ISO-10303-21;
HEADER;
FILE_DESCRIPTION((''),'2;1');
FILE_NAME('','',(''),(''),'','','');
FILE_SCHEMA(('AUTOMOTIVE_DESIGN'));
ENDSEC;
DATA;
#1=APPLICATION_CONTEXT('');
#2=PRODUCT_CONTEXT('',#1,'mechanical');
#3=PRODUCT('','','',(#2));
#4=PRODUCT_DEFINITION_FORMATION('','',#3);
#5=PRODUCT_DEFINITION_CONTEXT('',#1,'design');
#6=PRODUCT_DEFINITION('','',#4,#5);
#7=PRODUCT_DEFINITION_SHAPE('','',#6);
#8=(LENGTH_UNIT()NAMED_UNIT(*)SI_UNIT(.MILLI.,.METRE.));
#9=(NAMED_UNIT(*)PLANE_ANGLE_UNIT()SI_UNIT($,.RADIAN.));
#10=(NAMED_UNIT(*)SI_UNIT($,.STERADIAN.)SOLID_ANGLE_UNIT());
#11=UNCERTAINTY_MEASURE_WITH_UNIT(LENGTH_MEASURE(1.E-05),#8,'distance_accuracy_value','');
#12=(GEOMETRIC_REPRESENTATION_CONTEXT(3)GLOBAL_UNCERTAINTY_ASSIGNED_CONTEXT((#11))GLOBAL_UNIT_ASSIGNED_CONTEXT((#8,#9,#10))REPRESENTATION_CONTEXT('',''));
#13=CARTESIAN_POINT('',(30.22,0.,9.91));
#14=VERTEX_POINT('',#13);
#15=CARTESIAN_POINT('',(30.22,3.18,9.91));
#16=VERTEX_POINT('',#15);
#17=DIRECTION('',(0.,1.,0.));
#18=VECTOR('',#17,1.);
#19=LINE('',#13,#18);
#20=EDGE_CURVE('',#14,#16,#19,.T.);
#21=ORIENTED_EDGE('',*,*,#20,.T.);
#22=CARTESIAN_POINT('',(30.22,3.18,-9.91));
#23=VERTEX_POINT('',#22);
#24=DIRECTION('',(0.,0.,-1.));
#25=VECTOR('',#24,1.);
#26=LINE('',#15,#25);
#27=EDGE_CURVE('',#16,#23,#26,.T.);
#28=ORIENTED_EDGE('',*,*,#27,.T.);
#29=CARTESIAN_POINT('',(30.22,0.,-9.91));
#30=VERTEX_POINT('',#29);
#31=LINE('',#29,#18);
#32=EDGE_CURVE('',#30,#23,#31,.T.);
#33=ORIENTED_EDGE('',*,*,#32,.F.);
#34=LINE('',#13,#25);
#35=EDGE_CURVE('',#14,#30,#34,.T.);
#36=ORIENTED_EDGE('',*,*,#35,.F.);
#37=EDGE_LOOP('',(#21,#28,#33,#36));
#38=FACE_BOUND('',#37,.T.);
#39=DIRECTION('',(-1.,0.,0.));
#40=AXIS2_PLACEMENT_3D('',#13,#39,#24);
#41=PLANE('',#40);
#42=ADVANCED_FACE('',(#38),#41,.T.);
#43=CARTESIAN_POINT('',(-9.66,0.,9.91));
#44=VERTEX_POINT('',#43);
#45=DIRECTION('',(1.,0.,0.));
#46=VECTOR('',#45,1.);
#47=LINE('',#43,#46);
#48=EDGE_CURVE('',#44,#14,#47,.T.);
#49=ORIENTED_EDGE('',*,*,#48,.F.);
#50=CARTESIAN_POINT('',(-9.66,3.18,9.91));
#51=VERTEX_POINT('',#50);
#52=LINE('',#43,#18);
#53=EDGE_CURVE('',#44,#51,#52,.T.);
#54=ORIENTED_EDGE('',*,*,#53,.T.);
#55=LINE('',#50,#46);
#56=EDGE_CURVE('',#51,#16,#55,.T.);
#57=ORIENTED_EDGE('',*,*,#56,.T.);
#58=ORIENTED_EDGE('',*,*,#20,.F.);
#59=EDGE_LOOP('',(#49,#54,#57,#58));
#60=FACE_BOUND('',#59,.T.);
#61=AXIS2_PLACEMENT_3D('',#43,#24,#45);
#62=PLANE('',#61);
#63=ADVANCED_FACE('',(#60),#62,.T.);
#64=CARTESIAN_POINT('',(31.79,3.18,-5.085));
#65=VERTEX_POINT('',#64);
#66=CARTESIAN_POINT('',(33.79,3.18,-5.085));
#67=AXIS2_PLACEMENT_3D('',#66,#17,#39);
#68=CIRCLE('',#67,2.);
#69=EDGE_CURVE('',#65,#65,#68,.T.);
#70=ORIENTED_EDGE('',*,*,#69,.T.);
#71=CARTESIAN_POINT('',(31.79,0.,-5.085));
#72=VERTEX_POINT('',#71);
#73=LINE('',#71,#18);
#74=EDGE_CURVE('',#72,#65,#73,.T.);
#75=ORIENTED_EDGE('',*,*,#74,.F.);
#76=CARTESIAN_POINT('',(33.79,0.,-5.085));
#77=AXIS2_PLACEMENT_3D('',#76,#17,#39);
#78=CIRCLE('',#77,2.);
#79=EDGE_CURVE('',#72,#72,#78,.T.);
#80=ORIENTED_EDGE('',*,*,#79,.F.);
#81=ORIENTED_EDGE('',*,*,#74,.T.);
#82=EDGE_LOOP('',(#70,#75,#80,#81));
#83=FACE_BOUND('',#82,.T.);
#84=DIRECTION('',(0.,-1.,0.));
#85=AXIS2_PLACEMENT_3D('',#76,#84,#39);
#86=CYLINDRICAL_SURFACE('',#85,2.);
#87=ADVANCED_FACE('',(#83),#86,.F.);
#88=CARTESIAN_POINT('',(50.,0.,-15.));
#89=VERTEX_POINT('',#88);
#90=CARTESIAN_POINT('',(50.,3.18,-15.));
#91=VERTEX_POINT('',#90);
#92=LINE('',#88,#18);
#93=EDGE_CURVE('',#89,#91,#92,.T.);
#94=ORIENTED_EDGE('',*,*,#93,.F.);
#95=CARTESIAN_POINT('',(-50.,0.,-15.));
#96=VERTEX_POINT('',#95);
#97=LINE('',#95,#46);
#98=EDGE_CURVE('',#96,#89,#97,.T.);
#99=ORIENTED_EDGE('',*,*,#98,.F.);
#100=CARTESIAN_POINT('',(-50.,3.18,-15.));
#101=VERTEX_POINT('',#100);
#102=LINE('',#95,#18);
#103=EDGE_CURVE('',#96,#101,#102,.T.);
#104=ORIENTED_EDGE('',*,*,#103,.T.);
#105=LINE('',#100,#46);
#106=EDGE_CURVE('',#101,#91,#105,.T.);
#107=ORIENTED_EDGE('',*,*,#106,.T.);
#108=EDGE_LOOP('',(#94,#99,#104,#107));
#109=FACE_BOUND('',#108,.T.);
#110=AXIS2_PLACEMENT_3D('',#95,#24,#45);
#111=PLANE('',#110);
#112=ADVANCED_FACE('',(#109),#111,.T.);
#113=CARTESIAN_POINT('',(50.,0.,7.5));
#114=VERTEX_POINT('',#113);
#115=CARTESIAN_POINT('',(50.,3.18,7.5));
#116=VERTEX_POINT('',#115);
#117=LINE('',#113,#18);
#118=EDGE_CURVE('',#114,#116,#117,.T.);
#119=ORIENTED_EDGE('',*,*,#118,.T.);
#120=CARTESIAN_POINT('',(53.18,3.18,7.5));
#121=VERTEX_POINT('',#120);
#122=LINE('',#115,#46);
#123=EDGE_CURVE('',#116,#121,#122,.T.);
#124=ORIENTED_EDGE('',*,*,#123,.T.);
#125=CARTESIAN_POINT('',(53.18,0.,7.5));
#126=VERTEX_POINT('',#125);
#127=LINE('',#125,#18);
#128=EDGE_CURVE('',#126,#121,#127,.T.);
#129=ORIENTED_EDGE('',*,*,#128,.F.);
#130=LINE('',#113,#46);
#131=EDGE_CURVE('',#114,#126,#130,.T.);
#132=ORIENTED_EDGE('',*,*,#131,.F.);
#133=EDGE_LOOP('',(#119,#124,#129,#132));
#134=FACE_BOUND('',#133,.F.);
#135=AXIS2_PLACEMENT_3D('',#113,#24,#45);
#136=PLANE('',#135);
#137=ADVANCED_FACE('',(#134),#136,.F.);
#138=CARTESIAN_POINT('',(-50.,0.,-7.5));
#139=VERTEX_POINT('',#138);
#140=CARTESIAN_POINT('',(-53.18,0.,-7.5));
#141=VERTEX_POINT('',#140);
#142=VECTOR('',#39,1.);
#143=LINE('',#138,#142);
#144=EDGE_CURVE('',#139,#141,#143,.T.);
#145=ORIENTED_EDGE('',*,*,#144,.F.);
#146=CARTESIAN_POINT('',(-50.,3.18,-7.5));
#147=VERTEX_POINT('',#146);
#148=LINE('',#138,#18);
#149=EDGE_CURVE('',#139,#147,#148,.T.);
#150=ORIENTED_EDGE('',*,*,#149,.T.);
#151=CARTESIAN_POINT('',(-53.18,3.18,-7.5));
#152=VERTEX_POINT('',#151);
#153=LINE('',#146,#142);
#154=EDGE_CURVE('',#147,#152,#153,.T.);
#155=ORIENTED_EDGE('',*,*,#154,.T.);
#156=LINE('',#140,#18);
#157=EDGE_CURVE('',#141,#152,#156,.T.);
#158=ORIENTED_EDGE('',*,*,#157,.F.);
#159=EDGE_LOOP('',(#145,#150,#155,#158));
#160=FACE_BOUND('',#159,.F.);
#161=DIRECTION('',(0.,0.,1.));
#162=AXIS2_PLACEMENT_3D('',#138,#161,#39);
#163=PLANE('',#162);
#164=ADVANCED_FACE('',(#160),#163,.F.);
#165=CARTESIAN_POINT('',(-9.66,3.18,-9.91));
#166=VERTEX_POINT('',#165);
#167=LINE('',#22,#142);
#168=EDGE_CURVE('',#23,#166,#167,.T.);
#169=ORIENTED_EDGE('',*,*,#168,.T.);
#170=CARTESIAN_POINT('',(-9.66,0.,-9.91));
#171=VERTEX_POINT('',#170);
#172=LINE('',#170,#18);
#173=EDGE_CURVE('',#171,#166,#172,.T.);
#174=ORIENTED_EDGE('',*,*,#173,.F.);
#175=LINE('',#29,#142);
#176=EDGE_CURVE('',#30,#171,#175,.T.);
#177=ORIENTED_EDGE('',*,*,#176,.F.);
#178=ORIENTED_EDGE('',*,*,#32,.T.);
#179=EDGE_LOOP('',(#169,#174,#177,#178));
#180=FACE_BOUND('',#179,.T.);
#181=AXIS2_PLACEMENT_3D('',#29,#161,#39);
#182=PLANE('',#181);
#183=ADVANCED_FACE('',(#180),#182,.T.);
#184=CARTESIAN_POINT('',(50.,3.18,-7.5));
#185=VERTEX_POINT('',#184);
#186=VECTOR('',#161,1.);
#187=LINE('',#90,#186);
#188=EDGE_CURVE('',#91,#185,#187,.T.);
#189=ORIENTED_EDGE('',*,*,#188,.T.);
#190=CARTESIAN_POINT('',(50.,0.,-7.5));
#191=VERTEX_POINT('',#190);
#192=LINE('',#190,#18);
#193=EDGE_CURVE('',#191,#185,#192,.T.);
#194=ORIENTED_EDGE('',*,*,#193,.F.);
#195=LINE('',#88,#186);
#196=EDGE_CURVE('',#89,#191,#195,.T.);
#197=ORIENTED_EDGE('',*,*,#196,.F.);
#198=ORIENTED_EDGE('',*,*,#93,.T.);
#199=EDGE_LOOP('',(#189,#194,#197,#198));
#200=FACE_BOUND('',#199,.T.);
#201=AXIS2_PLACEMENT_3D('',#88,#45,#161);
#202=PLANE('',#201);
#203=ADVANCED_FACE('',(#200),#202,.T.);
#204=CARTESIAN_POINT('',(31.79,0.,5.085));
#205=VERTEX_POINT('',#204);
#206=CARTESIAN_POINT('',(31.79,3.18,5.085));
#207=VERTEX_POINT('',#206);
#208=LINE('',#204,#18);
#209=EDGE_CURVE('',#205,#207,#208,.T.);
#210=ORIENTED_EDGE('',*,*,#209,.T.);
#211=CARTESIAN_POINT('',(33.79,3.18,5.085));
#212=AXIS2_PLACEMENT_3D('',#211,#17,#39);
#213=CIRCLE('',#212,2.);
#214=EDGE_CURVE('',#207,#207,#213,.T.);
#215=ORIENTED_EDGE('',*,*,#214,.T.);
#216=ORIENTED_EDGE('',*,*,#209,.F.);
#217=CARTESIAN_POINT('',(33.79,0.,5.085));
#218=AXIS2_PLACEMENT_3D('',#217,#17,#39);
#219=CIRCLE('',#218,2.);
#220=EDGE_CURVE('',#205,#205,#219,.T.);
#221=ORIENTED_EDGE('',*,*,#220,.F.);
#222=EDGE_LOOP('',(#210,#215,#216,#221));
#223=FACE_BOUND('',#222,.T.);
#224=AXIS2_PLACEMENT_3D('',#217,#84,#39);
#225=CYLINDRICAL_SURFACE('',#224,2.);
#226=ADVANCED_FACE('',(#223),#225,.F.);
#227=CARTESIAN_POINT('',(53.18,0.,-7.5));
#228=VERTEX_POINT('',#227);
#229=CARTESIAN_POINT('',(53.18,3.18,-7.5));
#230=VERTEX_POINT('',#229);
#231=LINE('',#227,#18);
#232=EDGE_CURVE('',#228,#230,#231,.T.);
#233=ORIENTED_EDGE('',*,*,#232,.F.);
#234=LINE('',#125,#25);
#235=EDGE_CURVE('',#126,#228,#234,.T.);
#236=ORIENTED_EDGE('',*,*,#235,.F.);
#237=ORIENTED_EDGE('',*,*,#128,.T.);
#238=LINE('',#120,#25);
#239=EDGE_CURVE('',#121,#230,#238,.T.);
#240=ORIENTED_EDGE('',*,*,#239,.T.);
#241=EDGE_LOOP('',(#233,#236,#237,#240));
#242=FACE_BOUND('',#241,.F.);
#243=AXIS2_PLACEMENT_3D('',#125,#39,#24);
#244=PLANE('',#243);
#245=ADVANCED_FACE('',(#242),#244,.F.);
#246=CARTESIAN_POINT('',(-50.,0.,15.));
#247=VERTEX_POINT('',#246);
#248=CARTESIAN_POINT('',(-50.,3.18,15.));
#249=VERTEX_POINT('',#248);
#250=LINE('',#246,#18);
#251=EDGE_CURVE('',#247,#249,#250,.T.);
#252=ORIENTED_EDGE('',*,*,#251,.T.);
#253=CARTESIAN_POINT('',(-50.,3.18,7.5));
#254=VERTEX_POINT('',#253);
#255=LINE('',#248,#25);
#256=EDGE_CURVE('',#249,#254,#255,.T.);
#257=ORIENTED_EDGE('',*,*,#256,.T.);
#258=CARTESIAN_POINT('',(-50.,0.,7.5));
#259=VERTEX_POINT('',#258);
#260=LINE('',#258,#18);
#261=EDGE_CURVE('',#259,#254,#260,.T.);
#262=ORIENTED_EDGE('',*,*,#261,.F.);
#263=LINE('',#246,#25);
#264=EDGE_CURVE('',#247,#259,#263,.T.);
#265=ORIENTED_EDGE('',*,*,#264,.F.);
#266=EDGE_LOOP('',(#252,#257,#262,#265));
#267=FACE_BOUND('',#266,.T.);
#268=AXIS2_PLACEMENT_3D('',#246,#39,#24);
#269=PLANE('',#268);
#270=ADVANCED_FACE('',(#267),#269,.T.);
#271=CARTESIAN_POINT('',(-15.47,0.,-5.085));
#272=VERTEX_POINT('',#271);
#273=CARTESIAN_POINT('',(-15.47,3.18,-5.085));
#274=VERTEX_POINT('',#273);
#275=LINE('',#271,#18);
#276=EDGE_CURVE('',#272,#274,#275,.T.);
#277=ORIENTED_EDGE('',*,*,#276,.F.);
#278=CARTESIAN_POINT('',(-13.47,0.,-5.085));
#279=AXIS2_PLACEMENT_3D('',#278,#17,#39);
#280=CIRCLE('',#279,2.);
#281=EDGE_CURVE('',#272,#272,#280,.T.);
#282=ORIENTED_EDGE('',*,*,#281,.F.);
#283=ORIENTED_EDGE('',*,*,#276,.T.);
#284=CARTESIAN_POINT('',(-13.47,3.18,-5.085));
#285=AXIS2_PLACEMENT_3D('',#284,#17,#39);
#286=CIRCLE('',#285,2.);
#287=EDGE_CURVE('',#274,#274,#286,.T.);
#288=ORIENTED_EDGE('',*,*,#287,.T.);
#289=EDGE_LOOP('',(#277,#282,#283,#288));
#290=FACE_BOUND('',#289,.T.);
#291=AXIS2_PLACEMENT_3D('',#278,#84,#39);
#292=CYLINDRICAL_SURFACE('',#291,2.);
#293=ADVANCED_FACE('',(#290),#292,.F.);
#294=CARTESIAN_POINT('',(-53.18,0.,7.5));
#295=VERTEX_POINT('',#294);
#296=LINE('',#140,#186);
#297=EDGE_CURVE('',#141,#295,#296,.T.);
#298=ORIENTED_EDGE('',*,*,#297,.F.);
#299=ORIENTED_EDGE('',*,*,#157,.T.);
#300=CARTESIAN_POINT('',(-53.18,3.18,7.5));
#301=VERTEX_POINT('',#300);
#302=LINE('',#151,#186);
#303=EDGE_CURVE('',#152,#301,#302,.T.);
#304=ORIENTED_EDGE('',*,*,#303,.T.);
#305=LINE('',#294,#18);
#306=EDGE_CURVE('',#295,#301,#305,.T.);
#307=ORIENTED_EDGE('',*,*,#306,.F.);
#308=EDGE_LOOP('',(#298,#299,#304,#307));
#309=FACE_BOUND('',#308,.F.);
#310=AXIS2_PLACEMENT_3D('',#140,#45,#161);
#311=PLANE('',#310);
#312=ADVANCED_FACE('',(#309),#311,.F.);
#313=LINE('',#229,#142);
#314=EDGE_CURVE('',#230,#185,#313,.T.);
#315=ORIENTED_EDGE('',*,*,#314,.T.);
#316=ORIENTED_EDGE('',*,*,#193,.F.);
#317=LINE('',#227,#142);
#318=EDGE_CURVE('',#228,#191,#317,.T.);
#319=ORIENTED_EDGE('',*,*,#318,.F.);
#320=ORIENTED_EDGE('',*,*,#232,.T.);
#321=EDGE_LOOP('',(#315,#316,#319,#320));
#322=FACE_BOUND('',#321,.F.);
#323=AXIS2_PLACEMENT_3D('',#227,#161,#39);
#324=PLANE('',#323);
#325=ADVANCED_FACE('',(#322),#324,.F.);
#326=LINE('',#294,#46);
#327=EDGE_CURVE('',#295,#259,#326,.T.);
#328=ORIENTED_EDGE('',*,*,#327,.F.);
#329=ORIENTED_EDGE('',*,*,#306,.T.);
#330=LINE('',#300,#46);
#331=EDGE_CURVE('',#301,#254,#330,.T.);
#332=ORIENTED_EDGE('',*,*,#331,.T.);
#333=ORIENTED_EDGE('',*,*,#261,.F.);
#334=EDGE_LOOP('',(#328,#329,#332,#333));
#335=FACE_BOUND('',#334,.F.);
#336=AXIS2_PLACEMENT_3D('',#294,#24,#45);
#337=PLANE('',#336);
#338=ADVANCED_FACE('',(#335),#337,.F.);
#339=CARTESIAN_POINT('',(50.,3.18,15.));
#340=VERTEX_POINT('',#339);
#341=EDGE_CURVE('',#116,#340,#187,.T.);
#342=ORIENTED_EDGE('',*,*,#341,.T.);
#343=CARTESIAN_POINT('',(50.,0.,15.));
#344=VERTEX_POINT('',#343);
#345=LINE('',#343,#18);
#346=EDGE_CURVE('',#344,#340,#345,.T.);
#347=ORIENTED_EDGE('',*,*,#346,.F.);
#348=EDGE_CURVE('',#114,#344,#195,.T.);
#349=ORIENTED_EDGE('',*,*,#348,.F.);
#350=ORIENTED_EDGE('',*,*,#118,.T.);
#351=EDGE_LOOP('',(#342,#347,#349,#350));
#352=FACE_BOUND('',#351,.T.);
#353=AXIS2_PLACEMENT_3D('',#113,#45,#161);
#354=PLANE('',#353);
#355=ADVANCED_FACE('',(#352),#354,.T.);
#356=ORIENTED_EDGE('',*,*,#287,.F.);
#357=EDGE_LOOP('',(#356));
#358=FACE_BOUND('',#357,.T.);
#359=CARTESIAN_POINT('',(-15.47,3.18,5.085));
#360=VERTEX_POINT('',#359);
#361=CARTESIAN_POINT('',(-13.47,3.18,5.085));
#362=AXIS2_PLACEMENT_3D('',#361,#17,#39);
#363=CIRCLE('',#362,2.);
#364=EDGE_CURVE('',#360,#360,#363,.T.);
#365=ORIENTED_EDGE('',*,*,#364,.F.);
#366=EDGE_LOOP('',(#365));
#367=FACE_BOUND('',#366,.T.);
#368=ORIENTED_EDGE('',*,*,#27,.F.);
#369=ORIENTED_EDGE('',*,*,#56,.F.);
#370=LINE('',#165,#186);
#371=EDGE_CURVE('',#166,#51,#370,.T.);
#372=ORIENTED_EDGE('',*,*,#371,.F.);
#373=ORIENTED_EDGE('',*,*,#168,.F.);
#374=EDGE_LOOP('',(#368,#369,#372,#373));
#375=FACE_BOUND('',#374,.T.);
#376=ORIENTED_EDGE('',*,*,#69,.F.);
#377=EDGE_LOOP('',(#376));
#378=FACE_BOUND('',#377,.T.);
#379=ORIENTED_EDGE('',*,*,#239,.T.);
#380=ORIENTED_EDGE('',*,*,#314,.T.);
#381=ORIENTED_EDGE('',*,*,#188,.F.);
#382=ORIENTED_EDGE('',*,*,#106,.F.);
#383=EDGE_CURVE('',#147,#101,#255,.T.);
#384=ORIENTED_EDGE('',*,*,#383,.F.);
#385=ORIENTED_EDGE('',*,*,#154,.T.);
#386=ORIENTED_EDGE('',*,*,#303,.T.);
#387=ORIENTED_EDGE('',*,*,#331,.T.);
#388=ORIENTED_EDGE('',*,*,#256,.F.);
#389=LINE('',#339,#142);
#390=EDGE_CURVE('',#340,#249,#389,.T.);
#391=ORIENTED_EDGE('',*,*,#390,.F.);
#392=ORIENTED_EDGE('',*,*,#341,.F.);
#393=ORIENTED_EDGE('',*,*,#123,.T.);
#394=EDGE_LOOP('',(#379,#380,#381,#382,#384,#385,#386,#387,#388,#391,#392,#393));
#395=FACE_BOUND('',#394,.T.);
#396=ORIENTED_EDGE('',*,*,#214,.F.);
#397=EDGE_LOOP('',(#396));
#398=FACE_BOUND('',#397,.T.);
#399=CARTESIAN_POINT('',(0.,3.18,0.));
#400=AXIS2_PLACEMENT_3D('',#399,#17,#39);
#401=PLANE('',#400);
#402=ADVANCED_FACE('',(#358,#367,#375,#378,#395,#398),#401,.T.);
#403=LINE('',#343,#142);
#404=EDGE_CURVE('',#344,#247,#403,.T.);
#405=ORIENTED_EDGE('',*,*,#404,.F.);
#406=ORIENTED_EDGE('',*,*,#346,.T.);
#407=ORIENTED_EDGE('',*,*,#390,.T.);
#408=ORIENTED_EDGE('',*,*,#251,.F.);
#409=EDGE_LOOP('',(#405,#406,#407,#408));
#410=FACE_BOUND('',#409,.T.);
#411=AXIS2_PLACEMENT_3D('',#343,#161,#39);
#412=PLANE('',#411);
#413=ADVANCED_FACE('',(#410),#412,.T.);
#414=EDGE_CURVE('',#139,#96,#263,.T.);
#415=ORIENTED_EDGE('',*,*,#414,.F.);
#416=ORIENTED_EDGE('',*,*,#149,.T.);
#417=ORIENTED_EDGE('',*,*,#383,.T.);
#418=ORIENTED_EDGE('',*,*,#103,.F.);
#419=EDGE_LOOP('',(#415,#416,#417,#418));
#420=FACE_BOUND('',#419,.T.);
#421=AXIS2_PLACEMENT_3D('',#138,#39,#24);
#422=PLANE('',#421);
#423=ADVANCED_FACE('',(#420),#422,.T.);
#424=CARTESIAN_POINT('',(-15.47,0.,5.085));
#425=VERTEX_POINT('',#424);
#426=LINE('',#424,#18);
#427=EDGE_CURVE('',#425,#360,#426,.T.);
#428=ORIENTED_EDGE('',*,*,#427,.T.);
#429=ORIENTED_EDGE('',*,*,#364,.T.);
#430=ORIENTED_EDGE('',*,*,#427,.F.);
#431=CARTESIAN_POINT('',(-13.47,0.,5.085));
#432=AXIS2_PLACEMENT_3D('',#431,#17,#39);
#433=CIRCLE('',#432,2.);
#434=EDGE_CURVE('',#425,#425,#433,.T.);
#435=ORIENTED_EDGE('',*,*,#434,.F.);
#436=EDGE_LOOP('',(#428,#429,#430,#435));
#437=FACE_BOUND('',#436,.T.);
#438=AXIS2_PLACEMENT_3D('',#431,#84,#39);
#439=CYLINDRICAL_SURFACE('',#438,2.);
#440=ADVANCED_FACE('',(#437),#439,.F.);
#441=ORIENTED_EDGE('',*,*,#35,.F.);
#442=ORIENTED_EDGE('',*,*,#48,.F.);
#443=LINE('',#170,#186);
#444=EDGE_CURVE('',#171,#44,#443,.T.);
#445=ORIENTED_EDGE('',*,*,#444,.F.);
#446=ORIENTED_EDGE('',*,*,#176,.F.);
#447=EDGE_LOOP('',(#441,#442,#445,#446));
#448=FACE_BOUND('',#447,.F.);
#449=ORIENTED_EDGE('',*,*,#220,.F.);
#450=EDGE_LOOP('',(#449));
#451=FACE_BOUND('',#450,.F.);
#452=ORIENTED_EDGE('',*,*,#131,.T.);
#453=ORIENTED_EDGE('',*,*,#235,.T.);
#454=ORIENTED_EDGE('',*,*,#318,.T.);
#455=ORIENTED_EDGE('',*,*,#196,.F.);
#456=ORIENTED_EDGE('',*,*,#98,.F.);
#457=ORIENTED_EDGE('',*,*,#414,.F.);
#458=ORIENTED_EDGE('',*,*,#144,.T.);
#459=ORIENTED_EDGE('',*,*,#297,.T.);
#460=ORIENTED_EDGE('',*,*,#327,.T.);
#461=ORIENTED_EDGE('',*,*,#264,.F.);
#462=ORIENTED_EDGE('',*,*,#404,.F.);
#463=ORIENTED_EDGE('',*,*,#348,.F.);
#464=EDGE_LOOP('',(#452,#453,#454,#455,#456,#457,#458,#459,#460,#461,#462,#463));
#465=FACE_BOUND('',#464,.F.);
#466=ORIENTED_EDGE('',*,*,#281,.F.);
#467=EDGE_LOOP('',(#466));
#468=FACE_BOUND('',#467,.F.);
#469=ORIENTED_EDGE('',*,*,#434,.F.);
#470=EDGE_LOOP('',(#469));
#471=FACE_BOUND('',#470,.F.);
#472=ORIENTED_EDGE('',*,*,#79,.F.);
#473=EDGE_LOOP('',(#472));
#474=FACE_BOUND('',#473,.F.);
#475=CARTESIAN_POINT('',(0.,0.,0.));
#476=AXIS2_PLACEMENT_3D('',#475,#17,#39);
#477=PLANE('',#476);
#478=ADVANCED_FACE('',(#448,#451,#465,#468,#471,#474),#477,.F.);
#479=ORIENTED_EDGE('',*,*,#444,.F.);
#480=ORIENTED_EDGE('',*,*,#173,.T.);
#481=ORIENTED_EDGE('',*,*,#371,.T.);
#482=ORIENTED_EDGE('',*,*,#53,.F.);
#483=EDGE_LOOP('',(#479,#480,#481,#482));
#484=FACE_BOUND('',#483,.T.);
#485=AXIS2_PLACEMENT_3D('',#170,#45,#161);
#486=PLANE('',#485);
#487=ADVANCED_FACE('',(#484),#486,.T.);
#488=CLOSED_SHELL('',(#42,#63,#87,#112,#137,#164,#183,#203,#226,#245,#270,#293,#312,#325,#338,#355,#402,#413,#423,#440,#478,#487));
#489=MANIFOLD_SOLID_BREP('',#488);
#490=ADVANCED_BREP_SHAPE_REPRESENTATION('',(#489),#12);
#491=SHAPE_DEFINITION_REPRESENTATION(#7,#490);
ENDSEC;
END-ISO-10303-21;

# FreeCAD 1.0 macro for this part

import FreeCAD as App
import Part
import Sketcher
Q = App.Units.Quantity


def add_polygon(sketch, points):
    """Adds a closed chain of lines whose ends are joined by coincident constraints."""
    first, n = sketch.GeometryCount, len(points)
    for a, b in zip(points, points[1:] + points[:1]):
        sketch.addGeometry(Part.LineSegment(App.Vector(*a, 0), App.Vector(*b, 0)), False)
    for i in range(n):
        sketch.addConstraint(Sketcher.Constraint("Coincident", first + i, 2, first + (i + 1) % n, 1))

doc = App.newDocument("Part")
body = doc.addObject("PartDesign::Body", "Body")

# Sketch on XZ plane
sketch1 = doc.addObject("Sketcher::SketchObject", "Sketch")
body.addObject(sketch1)
sketch1.AttachmentSupport = (doc.XZ_Plane, [""])
sketch1.MapMode = "FlatFace"
add_polygon(sketch1, [(-50, 15), (50, 15), (50, 7.5), (53.18, 7.5), (53.18, -7.5), (50, -7.5), (50, -15), (-50, -15), (-50, -7.5), (-53.18, -7.5), (-53.18, 7.5), (-50, 7.5)])  # lines 0-11
sketch1.addGeometry(Part.Circle(App.Vector(33.79, -5.085, 0), App.Vector(0, 0, 1), 2), False)  # 12
sketch1.addGeometry(Part.Circle(App.Vector(-13.47, -5.085, 0), App.Vector(0, 0, 1), 2), False)  # 13
sketch1.addGeometry(Part.Circle(App.Vector(33.79, 5.085, 0), App.Vector(0, 0, 1), 2), False)  # 14
add_polygon(sketch1, [(30.22, 9.91), (-9.66, 9.91), (-9.66, -9.91), (30.22, -9.91)])  # lines 15-18
sketch1.addGeometry(Part.Circle(App.Vector(-13.47, 5.085, 0), App.Vector(0, 0, 1), 2), False)  # 19
sketch1.addConstraint([
    Sketcher.Constraint("Horizontal", 0),
    Sketcher.Constraint("Vertical", 1),
    Sketcher.Constraint("Horizontal", 2),
    Sketcher.Constraint("Vertical", 3),
    Sketcher.Constraint("Horizontal", 4),
    Sketcher.Constraint("Vertical", 5),
    Sketcher.Constraint("Horizontal", 6),
    Sketcher.Constraint("Vertical", 7),
    Sketcher.Constraint("Horizontal", 8),
    Sketcher.Constraint("Vertical", 9),
    Sketcher.Constraint("Horizontal", 10),
    Sketcher.Constraint("Vertical", 11),
    Sketcher.Constraint("Horizontal", 15),
    Sketcher.Constraint("Vertical", 16),
    Sketcher.Constraint("Horizontal", 17),
    Sketcher.Constraint("Vertical", 18),
    Sketcher.Constraint("Equal", 12, 13),
    Sketcher.Constraint("Equal", 13, 14),
    Sketcher.Constraint("Equal", 14, 19),
    Sketcher.Constraint("Symmetric", 0, 2, 6, 2, -1, 1),
    Sketcher.Constraint("Symmetric", 2, 2, 8, 2, -1, 1),
    Sketcher.Constraint("Symmetric", 4, 2, 10, 2, -1, 1),
    Sketcher.Constraint("Symmetric", 4, 2, 7, 2, -2),
    Sketcher.Constraint("Symmetric", 12, 3, 14, 3, -1),
    Sketcher.Constraint("Symmetric", 13, 3, 19, 3, -1),
    Sketcher.Constraint("Horizontal", 12, 3, 13, 3),
    Sketcher.Constraint("Diameter", 12, Q("4 mm")),
    Sketcher.Constraint("DistanceX", 0, 1, 0, 2, Q("100 mm")),
    Sketcher.Constraint("DistanceY", 3, 2, 3, 1, Q("15 mm")),
    Sketcher.Constraint("DistanceY", 1, 2, 1, 1, Q("7.5 mm")),
    Sketcher.Constraint("DistanceX", 2, 1, 2, 2, Q("3.18 mm")),
    Sketcher.Constraint("DistanceX", 15, 2, 15, 1, Q("39.88 mm")),
    Sketcher.Constraint("DistanceY", 16, 2, 16, 1, Q("19.82 mm")),
    Sketcher.Constraint("DistanceX", -1, 1, 12, 3, Q("33.79 mm")),
    Sketcher.Constraint("DistanceX", 13, 3, -1, 1, Q("13.47 mm")),
    Sketcher.Constraint("DistanceX", 15, 2, -1, 1, Q("9.66 mm")),
    Sketcher.Constraint("DistanceY", -1, 1, 15, 2, Q("9.91 mm")),
    Sketcher.Constraint("DistanceY", 12, 3, 14, 3, Q("10.17 mm")),
])
pad1 = doc.addObject("PartDesign::Pad", "Pad")
body.addObject(pad1)
pad1.Profile = sketch1
pad1.Length = 3.18
pad1.Reversed = True

doc.recompute()
